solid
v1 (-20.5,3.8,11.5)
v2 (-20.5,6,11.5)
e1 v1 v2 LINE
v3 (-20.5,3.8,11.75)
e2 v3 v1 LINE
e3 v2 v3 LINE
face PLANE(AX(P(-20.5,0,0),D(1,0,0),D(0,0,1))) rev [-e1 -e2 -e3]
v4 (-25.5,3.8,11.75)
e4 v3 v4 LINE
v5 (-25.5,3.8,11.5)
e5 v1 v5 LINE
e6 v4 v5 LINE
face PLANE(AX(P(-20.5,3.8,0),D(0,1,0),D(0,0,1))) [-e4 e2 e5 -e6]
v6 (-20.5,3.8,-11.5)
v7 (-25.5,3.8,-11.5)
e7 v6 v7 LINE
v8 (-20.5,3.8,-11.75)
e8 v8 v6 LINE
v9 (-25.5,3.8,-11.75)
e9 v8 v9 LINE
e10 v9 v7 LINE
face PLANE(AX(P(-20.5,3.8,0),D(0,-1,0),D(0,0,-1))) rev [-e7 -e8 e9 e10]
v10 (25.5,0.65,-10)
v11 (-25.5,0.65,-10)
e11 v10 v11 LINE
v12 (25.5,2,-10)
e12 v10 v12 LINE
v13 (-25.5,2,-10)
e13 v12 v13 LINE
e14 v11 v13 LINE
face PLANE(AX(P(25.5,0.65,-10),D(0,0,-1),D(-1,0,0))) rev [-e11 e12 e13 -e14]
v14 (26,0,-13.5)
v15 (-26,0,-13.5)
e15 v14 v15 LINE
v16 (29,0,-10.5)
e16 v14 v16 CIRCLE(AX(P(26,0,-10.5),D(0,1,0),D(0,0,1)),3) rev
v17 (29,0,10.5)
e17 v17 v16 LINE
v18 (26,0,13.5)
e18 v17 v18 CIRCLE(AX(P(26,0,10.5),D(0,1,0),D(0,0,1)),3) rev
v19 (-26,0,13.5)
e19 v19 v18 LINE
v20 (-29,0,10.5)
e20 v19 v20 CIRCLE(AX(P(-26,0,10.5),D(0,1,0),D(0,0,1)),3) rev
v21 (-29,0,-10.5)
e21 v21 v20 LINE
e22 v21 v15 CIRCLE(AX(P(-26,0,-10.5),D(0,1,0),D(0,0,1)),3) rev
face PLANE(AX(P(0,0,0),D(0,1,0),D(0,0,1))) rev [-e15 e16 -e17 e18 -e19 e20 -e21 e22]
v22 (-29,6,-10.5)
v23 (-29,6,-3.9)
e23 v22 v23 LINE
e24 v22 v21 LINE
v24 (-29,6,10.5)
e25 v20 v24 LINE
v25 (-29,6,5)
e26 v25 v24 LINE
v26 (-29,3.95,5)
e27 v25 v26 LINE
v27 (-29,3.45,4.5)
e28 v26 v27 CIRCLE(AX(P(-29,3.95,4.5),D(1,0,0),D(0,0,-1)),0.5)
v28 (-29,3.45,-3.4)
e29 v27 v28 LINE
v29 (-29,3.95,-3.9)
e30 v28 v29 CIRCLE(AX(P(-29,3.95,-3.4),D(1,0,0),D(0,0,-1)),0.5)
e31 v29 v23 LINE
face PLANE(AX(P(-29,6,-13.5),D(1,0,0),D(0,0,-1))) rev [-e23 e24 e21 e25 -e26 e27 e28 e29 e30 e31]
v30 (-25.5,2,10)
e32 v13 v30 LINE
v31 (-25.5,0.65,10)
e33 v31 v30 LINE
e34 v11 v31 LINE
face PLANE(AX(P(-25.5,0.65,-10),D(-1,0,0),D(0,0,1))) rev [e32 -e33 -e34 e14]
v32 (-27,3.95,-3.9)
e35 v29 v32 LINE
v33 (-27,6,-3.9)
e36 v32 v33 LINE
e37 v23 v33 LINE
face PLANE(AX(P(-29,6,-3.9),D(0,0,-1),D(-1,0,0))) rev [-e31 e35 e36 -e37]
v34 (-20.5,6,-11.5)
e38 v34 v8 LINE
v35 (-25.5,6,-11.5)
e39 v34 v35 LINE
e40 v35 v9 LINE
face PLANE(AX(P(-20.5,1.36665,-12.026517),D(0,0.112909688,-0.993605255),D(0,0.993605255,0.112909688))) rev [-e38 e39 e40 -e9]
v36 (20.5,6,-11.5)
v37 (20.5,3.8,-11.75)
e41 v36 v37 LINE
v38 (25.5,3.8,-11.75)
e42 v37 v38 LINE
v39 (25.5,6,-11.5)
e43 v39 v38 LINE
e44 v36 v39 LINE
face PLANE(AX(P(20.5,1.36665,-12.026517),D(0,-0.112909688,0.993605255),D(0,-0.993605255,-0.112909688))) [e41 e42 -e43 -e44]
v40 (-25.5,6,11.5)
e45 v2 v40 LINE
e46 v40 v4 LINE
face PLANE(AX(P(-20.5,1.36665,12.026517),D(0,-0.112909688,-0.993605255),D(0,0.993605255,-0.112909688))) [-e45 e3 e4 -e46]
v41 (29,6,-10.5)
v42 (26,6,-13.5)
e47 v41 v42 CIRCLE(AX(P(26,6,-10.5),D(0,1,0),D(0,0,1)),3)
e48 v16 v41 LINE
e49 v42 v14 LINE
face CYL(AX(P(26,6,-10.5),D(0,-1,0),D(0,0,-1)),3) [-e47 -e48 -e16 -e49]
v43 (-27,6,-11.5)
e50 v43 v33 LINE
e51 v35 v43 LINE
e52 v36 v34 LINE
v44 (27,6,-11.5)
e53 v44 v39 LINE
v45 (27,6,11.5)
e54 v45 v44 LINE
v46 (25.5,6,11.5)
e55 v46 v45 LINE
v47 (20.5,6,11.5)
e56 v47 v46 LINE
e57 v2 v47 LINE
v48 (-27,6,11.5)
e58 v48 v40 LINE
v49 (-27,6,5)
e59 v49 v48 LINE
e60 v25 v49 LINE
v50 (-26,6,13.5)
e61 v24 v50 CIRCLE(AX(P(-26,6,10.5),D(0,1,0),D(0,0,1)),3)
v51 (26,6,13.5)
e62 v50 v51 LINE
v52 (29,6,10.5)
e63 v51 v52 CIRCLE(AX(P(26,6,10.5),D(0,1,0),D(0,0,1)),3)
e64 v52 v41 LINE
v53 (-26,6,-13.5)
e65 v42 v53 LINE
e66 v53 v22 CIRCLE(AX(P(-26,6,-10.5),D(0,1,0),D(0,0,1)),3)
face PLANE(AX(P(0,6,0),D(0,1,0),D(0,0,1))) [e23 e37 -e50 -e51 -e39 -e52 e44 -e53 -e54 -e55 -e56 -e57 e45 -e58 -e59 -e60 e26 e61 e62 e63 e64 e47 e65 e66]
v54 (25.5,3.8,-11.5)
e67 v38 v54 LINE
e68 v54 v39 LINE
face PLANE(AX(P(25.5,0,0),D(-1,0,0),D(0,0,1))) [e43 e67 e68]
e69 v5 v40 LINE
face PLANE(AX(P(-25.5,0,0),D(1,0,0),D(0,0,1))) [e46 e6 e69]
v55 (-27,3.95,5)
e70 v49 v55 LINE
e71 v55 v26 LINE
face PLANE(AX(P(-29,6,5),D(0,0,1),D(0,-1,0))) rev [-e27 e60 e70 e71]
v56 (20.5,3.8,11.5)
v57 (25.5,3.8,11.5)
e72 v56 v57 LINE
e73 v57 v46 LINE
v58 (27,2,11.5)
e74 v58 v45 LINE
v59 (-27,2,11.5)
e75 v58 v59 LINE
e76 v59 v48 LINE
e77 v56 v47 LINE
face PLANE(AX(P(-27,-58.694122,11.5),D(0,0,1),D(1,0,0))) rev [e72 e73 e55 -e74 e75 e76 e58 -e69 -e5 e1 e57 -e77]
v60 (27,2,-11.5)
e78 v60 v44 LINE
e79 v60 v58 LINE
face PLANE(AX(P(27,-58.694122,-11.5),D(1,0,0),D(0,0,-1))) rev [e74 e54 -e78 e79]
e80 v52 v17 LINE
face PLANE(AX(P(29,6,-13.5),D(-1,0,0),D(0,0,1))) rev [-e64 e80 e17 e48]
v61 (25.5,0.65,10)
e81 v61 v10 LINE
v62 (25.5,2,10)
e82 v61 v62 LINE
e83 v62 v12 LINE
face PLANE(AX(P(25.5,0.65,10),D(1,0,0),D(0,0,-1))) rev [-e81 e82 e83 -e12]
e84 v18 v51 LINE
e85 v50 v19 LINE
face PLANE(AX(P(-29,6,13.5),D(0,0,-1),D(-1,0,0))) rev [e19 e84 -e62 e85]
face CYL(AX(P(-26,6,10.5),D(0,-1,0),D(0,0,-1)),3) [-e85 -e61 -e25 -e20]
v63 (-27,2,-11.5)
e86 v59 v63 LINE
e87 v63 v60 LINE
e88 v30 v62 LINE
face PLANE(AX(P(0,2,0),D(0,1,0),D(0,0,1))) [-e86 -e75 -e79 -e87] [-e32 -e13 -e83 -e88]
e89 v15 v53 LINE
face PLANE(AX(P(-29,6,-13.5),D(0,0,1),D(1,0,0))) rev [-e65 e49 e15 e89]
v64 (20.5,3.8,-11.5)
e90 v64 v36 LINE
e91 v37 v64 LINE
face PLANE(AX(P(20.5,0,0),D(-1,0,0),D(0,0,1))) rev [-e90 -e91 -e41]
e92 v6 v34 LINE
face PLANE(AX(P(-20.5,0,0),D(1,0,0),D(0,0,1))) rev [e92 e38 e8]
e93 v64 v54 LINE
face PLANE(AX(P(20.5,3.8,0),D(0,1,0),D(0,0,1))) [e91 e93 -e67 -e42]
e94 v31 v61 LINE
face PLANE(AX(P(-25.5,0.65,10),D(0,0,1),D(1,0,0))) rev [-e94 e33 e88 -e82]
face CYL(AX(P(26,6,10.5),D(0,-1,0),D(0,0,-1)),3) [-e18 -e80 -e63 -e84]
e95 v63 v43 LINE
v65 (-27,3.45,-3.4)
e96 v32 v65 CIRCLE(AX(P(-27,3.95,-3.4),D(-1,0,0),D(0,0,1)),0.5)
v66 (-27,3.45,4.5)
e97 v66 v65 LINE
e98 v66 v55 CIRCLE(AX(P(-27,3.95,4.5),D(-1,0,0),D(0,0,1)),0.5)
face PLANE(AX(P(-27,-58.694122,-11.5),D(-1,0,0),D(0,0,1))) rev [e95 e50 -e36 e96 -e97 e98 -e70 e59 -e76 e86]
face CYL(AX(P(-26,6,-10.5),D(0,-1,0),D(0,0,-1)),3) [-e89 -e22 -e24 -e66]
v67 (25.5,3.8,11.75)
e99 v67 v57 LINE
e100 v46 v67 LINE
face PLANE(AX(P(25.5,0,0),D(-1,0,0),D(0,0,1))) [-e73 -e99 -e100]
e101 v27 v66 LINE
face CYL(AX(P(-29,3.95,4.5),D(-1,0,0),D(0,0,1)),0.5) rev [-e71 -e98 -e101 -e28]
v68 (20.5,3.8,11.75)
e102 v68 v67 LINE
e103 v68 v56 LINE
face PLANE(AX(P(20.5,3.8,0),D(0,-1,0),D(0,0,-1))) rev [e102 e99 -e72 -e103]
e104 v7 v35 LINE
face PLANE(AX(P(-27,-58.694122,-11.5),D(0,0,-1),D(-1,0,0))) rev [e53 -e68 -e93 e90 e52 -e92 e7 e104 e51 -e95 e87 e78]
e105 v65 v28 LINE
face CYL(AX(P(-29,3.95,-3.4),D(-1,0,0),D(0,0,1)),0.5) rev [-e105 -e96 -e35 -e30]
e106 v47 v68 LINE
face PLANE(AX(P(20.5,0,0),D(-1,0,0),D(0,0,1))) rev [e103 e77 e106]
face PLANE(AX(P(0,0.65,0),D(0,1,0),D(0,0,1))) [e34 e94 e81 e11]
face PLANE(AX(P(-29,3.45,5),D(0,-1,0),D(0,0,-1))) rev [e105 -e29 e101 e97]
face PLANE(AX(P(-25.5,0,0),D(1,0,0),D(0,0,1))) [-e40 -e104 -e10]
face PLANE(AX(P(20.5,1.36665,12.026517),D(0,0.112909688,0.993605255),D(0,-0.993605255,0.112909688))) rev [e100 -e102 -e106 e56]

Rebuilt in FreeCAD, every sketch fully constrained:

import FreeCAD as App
import Part
import Sketcher

V = App.Vector
Q = App.Units.Quantity


def edges_at(feature, points):
    """Names of the edges that pass closest to the given points."""
    edges = feature.Shape.Edges
    near = lambda p: min(range(len(edges)), key=lambda i: edges[i].distToShape(Part.Vertex(*p))[0])
    return sorted({f"Edge{near(p) + 1}" for p in points})


def add_polygon(sketch, points):
    """Adds a closed chain of lines whose ends are joined by coincident constraints."""
    first, n = sketch.GeometryCount, len(points)
    for a, b in zip(points, points[1:] + points[:1]):
        sketch.addGeometry(Part.LineSegment(App.Vector(*a, 0), App.Vector(*b, 0)), False)
    for i in range(n):
        sketch.addConstraint(Sketcher.Constraint("Coincident", first + i, 2, first + (i + 1) % n, 1))

doc = App.newDocument("Part")
body = doc.addObject("PartDesign::Body", "Body")

sketch1 = doc.addObject("Sketcher::SketchObject", "Sketch")
body.addObject(sketch1)
sketch1.AttachmentSupport = (doc.XZ_Plane, [""])
sketch1.MapMode = "FlatFace"
add_polygon(sketch1, [(-29, -13.5), (-29, 13.5), (29, 13.5), (29, -13.5)])
sketch1.addConstraint([
    Sketcher.Constraint("Vertical", 0),
    Sketcher.Constraint("Horizontal", 1),
    Sketcher.Constraint("Vertical", 2),
    Sketcher.Constraint("Horizontal", 3),
    Sketcher.Constraint("Symmetric", 0, 2, 2, 2, -1, 1),
    Sketcher.Constraint("DistanceX", 1, 1, 1, 2, Q("58 mm")),
    Sketcher.Constraint("DistanceY", 0, 1, 0, 2, Q("27 mm")),
])
pad1 = doc.addObject("PartDesign::Pad", "Pad")
body.addObject(pad1)
pad1.Profile = sketch1
pad1.Length = 6
pad1.Reversed = True

sketch2 = doc.addObject("Sketcher::SketchObject", "Sketch001")
body.addObject(sketch2)
sketch2.AttachmentSupport = (doc.XZ_Plane, [""])
sketch2.MapMode = "FlatFace"
sketch2.AttachmentOffset = App.Placement(V(0, 0, -6), App.Rotation())
add_polygon(sketch2, [(-27, -11.5), (-27, 11.5), (27, 11.5), (27, -11.5)])
sketch2.addConstraint([
    Sketcher.Constraint("Vertical", 0),
    Sketcher.Constraint("Horizontal", 1),
    Sketcher.Constraint("Vertical", 2),
    Sketcher.Constraint("Horizontal", 3),
    Sketcher.Constraint("Symmetric", 0, 2, 2, 2, -1, 1),
    Sketcher.Constraint("DistanceX", 1, 1, 1, 2, Q("54 mm")),
    Sketcher.Constraint("DistanceY", 0, 1, 0, 2, Q("23 mm")),
])
pocket1 = doc.addObject("PartDesign::Pocket", "Pocket")
body.addObject(pocket1)
pocket1.Profile = sketch2
pocket1.Length = 4
pocket1.Reversed = True

sketch3 = doc.addObject("Sketcher::SketchObject", "Sketch002")
body.addObject(sketch3)
sketch3.AttachmentSupport = (doc.YZ_Plane, [""])
sketch3.MapMode = "FlatFace"
sketch3.AttachmentOffset = App.Placement(V(0, 0, -27), App.Rotation())
add_polygon(sketch3, [(6, 5), (3.45, 5), (3.45, -3.9), (6, -3.9)])
sketch3.addConstraint([
    Sketcher.Constraint("Horizontal", 0),
    Sketcher.Constraint("Vertical", 1),
    Sketcher.Constraint("Horizontal", 2),
    Sketcher.Constraint("Vertical", 3),
    Sketcher.Constraint("DistanceY", 1, 2, 1, 1, Q("8.9 mm")),
    Sketcher.Constraint("DistanceY", -1, 1, 0, 2, Q("5 mm")),
    Sketcher.Constraint("DistanceX", -1, 1, 2, 2, Q("6 mm")),
    Sketcher.Constraint("DistanceX", 0, 2, 0, 1, Q("2.55 mm")),
])
pocket2 = doc.addObject("PartDesign::Pocket", "Pocket001")
body.addObject(pocket2)
pocket2.Profile = sketch3
pocket2.Type = "ThroughAll"
doc.recompute()

fillet = doc.addObject("PartDesign::Fillet", "Fillet")
body.addObject(fillet)
fillet.Base = (pocket2, edges_at(pocket2, [(-28, 3.45, 5), (-28, 3.45, -3.9)]))
fillet.Radius = 0.5
doc.recompute()

fillet2 = doc.addObject("PartDesign::Fillet", "Fillet001")
body.addObject(fillet2)
fillet2.Base = (fillet, edges_at(fillet, [
    (-29, 3, -13.5),
    (29, 3, -13.5),
    (29, 3, 13.5),
    (-29, 3, 13.5),
]))
fillet2.Radius = 3

sketch4 = doc.addObject("Sketcher::SketchObject", "Sketch003")
body.addObject(sketch4)
sketch4.AttachmentSupport = (doc.XZ_Plane, [""])
sketch4.MapMode = "FlatFace"
sketch4.AttachmentOffset = App.Placement(V(0, 0, -2), App.Rotation())
add_polygon(sketch4, [(-25.5, -10), (-25.5, 10), (25.5, 10), (25.5, -10)])
sketch4.addConstraint([
    Sketcher.Constraint("Vertical", 0),
    Sketcher.Constraint("Horizontal", 1),
    Sketcher.Constraint("Vertical", 2),
    Sketcher.Constraint("Horizontal", 3),
    Sketcher.Constraint("Symmetric", 0, 2, 2, 2, -1, 1),
    Sketcher.Constraint("DistanceX", 1, 1, 1, 2, Q("51 mm")),
    Sketcher.Constraint("DistanceY", 0, 1, 0, 2, Q("20 mm")),
])
pocket3 = doc.addObject("PartDesign::Pocket", "Pocket002")
body.addObject(pocket3)
pocket3.Profile = sketch4
pocket3.Length = 1.35
pocket3.Reversed = True

sketch5 = doc.addObject("Sketcher::SketchObject", "Sketch004")
body.addObject(sketch5)
sketch5.AttachmentSupport = (doc.YZ_Plane, [""])
sketch5.MapMode = "FlatFace"
sketch5.AttachmentOffset = App.Placement(V(0, 0, 25.5), App.Rotation())
add_polygon(sketch5, [(3.8, -11.75), (3.8, -11.5), (6, -11.5)])
add_polygon(sketch5, [(6, 11.5), (3.8, 11.5), (3.8, 11.75)])
sketch5.addConstraint([
    Sketcher.Constraint("Vertical", 0),
    Sketcher.Constraint("Horizontal", 1),
    Sketcher.Constraint("Horizontal", 3),
    Sketcher.Constraint("Vertical", 4),
    Sketcher.Constraint("Symmetric", 0, 2, 3, 2, -1),
    Sketcher.Constraint("Vertical", 1, 2, 5, 2),
    Sketcher.Constraint("Equal", 0, 4),
    Sketcher.Constraint("DistanceX", 1, 1, 1, 2, Q("2.2 mm")),
    Sketcher.Constraint("DistanceX", -1, 1, 1, 2, Q("6 mm")),
    Sketcher.Constraint("DistanceY", 0, 2, 3, 2, Q("23 mm")),
    Sketcher.Constraint("DistanceY", 0, 1, 0, 2, Q("0.25 mm")),
])
pocket4 = doc.addObject("PartDesign::Pocket", "Pocket003")
body.addObject(pocket4)
pocket4.Profile = sketch5
pocket4.Length = 5
doc.recompute()

mirrored = doc.addObject("PartDesign::Mirrored", "Mirrored")
body.addObject(mirrored)
mirrored.Originals = [pocket4]
mirrored.MirrorPlane = (doc.YZ_Plane, [""])
body.Tip = mirrored

doc.recompute()
